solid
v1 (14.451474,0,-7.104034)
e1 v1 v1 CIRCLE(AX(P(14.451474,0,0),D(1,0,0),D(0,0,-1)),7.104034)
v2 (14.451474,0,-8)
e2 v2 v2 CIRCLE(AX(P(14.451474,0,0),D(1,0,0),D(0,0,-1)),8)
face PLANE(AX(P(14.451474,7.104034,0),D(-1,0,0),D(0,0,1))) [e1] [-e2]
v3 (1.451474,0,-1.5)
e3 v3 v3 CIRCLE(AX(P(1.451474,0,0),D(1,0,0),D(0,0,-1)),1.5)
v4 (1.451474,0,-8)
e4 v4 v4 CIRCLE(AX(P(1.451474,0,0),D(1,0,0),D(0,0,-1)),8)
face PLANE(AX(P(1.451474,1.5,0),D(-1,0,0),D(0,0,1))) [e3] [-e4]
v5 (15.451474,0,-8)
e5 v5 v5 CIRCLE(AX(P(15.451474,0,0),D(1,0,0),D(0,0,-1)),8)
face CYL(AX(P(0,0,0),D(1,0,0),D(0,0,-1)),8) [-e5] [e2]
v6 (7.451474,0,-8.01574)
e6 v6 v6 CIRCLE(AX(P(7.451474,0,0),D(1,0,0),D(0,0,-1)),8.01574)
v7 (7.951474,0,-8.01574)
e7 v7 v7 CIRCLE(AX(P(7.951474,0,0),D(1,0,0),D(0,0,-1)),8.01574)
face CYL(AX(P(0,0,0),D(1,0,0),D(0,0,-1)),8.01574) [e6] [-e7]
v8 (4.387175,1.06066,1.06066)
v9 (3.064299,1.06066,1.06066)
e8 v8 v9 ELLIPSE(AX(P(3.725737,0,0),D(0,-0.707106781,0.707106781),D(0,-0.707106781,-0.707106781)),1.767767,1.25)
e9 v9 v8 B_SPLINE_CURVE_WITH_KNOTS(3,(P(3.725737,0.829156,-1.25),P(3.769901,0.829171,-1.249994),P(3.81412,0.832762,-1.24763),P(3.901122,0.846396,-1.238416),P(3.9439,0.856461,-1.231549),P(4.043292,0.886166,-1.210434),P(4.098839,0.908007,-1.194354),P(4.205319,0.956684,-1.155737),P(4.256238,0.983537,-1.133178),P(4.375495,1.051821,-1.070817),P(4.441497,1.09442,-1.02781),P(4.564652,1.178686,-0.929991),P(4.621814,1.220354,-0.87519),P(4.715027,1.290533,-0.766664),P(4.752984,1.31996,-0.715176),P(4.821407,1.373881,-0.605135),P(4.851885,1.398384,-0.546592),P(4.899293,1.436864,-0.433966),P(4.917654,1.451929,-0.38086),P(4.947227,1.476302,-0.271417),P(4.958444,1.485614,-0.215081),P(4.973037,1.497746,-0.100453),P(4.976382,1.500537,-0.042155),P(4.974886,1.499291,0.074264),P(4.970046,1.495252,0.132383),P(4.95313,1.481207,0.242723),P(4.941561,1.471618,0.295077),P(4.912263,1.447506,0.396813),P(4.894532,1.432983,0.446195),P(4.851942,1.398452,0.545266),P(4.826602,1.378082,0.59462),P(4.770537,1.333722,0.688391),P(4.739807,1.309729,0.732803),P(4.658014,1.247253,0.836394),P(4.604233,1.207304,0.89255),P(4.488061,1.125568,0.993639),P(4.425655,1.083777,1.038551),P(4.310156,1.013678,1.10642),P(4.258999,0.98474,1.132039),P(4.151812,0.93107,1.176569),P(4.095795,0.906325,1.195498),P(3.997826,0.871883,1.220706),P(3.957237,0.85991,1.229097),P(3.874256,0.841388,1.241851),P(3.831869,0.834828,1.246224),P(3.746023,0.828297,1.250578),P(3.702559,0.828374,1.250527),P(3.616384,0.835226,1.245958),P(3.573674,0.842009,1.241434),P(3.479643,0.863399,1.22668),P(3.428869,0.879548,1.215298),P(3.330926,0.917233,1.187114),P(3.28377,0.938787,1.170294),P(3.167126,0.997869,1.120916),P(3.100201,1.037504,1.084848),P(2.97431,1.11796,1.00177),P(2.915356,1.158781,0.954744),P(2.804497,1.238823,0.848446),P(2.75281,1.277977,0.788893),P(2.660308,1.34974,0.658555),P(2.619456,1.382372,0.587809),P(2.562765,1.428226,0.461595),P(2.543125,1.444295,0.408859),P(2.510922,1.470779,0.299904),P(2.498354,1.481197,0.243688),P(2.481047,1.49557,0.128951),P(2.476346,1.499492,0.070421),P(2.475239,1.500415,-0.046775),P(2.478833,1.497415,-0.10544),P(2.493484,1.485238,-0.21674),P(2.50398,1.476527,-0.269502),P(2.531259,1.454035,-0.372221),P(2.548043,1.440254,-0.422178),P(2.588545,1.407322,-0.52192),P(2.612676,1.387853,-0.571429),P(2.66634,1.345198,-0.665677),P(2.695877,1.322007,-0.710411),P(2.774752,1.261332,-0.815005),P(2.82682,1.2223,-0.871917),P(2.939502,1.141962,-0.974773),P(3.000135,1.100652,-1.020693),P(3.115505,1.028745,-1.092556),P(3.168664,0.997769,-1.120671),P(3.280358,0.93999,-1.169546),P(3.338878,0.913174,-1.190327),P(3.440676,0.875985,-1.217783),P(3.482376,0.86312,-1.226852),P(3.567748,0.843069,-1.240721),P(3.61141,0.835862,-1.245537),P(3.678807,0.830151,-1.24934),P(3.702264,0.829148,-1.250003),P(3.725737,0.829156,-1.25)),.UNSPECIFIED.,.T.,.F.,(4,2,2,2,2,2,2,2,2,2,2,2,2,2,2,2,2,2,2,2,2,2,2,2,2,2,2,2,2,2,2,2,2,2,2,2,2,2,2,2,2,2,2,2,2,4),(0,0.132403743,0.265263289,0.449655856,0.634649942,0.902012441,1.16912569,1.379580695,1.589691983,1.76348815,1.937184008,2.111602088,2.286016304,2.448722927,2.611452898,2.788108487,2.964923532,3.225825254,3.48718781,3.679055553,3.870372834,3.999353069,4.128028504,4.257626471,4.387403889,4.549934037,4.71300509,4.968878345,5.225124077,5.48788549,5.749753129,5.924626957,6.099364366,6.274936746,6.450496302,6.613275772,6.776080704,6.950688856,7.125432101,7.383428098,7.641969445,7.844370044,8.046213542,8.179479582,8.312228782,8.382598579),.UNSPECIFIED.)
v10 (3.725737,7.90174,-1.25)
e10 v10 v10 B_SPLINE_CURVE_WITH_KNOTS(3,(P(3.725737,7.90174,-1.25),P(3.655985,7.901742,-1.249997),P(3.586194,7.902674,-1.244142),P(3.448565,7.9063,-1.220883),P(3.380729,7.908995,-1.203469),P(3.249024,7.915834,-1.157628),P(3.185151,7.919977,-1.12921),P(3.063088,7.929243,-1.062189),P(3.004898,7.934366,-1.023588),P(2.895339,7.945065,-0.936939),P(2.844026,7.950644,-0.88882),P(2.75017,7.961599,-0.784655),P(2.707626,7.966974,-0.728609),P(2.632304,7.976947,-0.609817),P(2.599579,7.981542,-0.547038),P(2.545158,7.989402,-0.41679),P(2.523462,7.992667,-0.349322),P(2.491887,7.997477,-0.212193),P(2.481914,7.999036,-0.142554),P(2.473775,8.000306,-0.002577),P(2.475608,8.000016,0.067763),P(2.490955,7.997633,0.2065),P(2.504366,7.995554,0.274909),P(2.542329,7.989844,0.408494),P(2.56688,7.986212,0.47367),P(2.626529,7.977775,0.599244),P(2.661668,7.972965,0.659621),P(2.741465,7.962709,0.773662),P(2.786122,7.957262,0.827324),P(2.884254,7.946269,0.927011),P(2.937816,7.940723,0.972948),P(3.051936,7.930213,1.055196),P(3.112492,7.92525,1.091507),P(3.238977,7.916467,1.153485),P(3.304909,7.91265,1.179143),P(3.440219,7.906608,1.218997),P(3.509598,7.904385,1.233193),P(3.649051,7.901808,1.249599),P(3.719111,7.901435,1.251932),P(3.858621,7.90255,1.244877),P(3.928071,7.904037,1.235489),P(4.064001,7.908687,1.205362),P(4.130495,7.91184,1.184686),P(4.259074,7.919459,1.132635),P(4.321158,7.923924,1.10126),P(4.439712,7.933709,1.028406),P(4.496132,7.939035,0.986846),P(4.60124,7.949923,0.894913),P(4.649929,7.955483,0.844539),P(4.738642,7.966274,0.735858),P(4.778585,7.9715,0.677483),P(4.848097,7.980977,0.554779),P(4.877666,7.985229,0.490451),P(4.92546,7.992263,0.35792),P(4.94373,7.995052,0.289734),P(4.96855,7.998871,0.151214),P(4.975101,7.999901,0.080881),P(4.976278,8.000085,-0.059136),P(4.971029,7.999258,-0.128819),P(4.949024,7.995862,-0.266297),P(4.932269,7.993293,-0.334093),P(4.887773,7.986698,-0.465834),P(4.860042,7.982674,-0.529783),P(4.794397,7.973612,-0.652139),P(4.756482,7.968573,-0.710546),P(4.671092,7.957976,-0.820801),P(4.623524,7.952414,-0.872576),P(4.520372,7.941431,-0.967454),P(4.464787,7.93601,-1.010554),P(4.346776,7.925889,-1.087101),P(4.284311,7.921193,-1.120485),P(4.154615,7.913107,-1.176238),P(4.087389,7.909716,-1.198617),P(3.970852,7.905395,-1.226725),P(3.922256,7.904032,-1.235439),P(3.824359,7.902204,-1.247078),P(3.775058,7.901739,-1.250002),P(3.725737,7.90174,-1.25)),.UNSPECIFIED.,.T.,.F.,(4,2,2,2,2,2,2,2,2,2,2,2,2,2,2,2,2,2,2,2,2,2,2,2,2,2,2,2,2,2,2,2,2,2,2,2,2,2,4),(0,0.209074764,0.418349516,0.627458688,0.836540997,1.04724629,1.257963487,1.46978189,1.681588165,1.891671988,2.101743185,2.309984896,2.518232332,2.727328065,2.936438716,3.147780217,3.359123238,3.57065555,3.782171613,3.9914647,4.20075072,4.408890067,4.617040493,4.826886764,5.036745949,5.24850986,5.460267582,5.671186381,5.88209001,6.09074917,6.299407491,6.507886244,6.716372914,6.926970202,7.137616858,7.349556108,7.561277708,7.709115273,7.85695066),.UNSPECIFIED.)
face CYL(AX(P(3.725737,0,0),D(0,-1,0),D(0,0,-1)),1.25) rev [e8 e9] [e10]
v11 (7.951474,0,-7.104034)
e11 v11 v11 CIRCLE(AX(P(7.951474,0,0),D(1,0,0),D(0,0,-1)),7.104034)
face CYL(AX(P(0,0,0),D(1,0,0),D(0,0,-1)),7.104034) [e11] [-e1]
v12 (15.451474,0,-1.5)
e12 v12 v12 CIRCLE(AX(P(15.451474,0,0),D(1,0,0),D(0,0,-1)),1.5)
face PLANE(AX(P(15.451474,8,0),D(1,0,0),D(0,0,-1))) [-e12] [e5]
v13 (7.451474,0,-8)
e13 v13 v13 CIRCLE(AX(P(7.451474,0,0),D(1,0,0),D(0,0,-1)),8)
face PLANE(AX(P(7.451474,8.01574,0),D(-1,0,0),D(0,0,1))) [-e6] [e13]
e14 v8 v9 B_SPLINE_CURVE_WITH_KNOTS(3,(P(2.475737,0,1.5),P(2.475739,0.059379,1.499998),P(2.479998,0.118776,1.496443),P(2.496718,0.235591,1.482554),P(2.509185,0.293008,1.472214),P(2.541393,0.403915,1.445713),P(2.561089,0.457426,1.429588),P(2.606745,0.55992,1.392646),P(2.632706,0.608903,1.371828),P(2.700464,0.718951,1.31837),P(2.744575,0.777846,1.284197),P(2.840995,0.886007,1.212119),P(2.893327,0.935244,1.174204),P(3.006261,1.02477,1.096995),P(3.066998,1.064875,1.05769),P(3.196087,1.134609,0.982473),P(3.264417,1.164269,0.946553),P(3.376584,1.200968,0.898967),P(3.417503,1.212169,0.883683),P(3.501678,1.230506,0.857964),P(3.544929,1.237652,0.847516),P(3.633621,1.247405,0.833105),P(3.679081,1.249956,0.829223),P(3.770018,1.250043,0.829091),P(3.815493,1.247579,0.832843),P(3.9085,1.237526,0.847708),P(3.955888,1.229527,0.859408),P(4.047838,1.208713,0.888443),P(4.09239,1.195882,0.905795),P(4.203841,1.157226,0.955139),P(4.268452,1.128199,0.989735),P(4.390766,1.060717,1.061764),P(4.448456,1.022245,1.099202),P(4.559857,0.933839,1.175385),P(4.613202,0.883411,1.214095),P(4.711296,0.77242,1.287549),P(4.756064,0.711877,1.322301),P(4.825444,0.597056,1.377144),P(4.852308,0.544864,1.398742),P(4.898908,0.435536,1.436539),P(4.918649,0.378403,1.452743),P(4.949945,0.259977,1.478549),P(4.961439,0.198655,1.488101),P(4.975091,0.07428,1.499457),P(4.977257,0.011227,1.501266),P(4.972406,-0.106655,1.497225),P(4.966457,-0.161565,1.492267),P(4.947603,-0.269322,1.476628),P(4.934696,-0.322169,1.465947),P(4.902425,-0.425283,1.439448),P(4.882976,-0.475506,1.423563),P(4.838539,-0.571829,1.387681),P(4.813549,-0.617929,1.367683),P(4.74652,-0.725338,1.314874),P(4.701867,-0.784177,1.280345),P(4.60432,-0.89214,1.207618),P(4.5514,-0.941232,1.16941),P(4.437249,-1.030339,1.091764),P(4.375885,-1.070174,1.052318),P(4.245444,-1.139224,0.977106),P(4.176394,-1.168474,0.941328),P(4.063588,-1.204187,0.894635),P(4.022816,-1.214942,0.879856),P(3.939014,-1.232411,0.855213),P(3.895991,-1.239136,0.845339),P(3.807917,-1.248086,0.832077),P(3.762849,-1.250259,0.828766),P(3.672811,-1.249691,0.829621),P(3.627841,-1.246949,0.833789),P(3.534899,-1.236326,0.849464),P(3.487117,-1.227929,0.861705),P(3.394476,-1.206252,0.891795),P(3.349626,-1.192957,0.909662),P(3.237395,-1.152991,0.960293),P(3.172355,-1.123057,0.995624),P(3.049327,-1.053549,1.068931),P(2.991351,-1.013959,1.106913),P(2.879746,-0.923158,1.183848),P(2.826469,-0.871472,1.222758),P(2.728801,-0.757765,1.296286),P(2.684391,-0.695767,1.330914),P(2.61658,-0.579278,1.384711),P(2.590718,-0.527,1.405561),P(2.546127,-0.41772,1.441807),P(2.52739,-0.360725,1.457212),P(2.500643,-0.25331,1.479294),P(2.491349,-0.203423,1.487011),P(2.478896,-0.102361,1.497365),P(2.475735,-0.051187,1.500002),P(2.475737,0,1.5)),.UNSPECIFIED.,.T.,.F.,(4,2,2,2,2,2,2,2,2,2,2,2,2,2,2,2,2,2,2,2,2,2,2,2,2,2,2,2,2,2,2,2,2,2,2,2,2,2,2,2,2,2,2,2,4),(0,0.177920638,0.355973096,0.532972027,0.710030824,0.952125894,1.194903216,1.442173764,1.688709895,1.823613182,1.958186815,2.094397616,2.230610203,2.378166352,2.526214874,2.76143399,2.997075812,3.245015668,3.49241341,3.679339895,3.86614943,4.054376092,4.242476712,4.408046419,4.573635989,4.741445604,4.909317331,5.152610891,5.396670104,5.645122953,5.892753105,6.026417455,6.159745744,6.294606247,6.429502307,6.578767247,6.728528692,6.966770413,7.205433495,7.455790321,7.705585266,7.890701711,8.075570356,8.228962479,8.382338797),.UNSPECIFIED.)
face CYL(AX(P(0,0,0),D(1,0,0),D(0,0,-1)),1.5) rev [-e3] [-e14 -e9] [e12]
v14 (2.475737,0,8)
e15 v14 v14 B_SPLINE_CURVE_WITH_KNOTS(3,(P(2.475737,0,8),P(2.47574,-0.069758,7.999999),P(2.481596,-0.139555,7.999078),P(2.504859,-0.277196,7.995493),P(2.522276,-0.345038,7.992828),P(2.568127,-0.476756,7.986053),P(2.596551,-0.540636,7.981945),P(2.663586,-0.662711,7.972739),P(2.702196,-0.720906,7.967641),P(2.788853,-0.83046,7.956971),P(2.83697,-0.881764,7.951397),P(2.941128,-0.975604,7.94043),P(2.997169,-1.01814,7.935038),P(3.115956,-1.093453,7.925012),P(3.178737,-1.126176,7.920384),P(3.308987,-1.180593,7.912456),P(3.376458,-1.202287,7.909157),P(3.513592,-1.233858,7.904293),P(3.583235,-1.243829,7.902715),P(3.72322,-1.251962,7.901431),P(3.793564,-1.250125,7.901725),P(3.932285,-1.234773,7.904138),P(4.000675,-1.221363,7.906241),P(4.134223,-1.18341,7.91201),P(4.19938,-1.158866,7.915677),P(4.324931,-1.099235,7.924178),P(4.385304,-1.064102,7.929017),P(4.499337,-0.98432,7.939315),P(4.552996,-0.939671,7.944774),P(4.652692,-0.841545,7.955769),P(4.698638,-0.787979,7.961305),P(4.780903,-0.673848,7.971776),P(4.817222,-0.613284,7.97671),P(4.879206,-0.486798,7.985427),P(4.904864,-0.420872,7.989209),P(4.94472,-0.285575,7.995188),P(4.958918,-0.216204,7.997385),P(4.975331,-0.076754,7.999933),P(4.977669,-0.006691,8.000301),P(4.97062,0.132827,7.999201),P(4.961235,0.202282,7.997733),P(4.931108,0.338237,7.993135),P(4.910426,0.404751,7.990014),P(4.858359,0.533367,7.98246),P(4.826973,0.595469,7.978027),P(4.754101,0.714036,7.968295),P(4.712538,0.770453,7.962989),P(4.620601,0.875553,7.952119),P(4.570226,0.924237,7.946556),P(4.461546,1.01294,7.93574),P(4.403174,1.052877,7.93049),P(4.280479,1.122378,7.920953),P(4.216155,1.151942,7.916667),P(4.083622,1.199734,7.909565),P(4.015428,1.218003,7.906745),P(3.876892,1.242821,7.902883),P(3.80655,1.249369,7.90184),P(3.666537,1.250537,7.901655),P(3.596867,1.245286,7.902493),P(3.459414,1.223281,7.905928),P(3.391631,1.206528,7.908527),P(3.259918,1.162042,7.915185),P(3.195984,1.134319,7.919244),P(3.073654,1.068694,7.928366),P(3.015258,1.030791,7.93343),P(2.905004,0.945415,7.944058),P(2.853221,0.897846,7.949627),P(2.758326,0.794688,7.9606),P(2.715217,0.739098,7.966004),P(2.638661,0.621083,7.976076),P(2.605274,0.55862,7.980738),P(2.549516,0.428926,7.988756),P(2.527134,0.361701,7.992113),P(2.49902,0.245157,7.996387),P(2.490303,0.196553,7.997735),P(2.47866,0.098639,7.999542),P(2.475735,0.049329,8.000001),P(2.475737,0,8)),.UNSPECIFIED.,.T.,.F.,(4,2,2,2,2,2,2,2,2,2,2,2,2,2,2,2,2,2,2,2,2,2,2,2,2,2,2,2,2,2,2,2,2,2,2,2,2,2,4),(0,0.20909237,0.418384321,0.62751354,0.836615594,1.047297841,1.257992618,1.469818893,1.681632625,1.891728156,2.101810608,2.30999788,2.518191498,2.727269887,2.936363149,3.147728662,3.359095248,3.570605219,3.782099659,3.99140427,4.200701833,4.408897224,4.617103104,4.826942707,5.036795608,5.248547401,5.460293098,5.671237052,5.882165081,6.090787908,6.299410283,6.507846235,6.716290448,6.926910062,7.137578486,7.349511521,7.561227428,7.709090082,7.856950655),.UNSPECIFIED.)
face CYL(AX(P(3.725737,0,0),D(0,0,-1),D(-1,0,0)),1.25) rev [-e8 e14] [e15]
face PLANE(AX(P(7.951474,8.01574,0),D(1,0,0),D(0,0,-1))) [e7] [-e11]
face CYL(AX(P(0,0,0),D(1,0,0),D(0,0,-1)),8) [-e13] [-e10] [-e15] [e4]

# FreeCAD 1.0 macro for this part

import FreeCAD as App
import Part
import Sketcher
Q = App.Units.Quantity

doc = App.newDocument("Part")
body = doc.addObject("PartDesign::Body", "Body")

sketch1 = body.newObject("Sketcher::SketchObject", "Sketch")
sketch1.AttachmentSupport = (doc.getObject("XY_Plane"), [""])
sketch1.MapMode = "FlatFace"
sketch1.addGeometry(Part.LineSegment(App.Vector(1.451, 8, 0), App.Vector(1.451, 1.5, 0)), False)
sketch1.addGeometry(Part.LineSegment(App.Vector(1.451, 1.5, 0), App.Vector(15.451, 1.5, 0)), False)
sketch1.addGeometry(Part.LineSegment(App.Vector(15.451, 1.5, 0), App.Vector(15.451, 8, 0)), False)
sketch1.addGeometry(Part.LineSegment(App.Vector(15.451, 8, 0), App.Vector(14.451, 8, 0)), False)
sketch1.addGeometry(Part.LineSegment(App.Vector(14.451, 8, 0), App.Vector(14.451, 7.104, 0)), False)
sketch1.addGeometry(Part.LineSegment(App.Vector(14.451, 7.104, 0), App.Vector(7.951, 7.104, 0)), False)
sketch1.addGeometry(Part.LineSegment(App.Vector(7.951, 7.104, 0), App.Vector(7.951, 8.016, 0)), False)
sketch1.addGeometry(Part.LineSegment(App.Vector(7.951, 8.016, 0), App.Vector(7.451, 8.016, 0)), False)
sketch1.addGeometry(Part.LineSegment(App.Vector(7.451, 8.016, 0), App.Vector(7.451, 8, 0)), False)
sketch1.addGeometry(Part.LineSegment(App.Vector(7.451, 8, 0), App.Vector(1.451, 8, 0)), False)
sketch1.addConstraint(Sketcher.Constraint("Coincident", 0, 2, 1, 1))
sketch1.addConstraint(Sketcher.Constraint("Coincident", 1, 2, 2, 1))
sketch1.addConstraint(Sketcher.Constraint("Coincident", 2, 2, 3, 1))
sketch1.addConstraint(Sketcher.Constraint("Coincident", 3, 2, 4, 1))
sketch1.addConstraint(Sketcher.Constraint("Coincident", 4, 2, 5, 1))
sketch1.addConstraint(Sketcher.Constraint("Coincident", 5, 2, 6, 1))
sketch1.addConstraint(Sketcher.Constraint("Coincident", 6, 2, 7, 1))
sketch1.addConstraint(Sketcher.Constraint("Coincident", 7, 2, 8, 1))
sketch1.addConstraint(Sketcher.Constraint("Coincident", 8, 2, 9, 1))
sketch1.addConstraint(Sketcher.Constraint("Coincident", 9, 2, 0, 1))
sketch1.addConstraint(Sketcher.Constraint("Vertical", 0))
sketch1.addConstraint(Sketcher.Constraint("Horizontal", 1))
sketch1.addConstraint(Sketcher.Constraint("Vertical", 2))
sketch1.addConstraint(Sketcher.Constraint("Horizontal", 3))
sketch1.addConstraint(Sketcher.Constraint("Vertical", 4))
sketch1.addConstraint(Sketcher.Constraint("Horizontal", 5))
sketch1.addConstraint(Sketcher.Constraint("Vertical", 6))
sketch1.addConstraint(Sketcher.Constraint("Horizontal", 7))
sketch1.addConstraint(Sketcher.Constraint("Vertical", 8))
sketch1.addConstraint(Sketcher.Constraint("Horizontal", 9))
sketch1.addConstraint(Sketcher.Constraint("Horizontal", 3, 2, 8, 2))
sketch1.addConstraint(Sketcher.Constraint("Equal", 5, 0))
sketch1.addConstraint(Sketcher.Constraint("DistanceX", 1, 1, 1, 2, Q("14 mm")))
sketch1.addConstraint(Sketcher.Constraint("DistanceX", 3, 2, 3, 1, Q("1 mm")))
sketch1.addConstraint(Sketcher.Constraint("DistanceX", 9, 2, 9, 1, Q("6 mm")))
sketch1.addConstraint(Sketcher.Constraint("DistanceX", 5, 2, 5, 1, Q("6.5 mm")))
sketch1.addConstraint(Sketcher.Constraint("DistanceY", -1, 1, 2, 2, Q("8 mm")))
sketch1.addConstraint(Sketcher.Constraint("DistanceY", 8, 2, 8, 1, Q("0.01574 mm")))
sketch1.addConstraint(Sketcher.Constraint("DistanceY", 4, 2, 4, 1, Q("0.895966 mm")))
sketch1.addConstraint(Sketcher.Constraint("DistanceX", -1, 1, 0, 2, Q("1.451474 mm")))
revolution = body.newObject("PartDesign::Revolution", "Revolution")
revolution.Profile = sketch1
revolution.ReferenceAxis = (sketch1, ["H_Axis"])
revolution.Angle = 360

sketch2 = body.newObject("Sketcher::SketchObject", "Sketch001")
sketch2.AttachmentSupport = (doc.getObject("YZ_Plane"), [""])
sketch2.MapMode = "FlatFace"
sketch2.AttachmentOffset = App.Placement(App.Vector(0, 0, 3.725737), App.Rotation())
sketch2.addGeometry(Part.LineSegment(App.Vector(8, 0, 0), App.Vector(0, 0, 0)), False)
sketch2.addGeometry(Part.LineSegment(App.Vector(0, 0, 0), App.Vector(0, -1.2, 0)), False)
sketch2.addGeometry(Part.LineSegment(App.Vector(0, -1.2, 0), App.Vector(8, -1.2, 0)), False)
sketch2.addGeometry(Part.LineSegment(App.Vector(8, -1.2, 0), App.Vector(8, 0, 0)), False)
sketch2.addConstraint(Sketcher.Constraint("Coincident", 0, 2, 1, 1))
sketch2.addConstraint(Sketcher.Constraint("Coincident", 1, 2, 2, 1))
sketch2.addConstraint(Sketcher.Constraint("Coincident", 2, 2, 3, 1))
sketch2.addConstraint(Sketcher.Constraint("Coincident", 3, 2, 0, 1))
sketch2.addConstraint(Sketcher.Constraint("Horizontal", 0))
sketch2.addConstraint(Sketcher.Constraint("Vertical", 1))
sketch2.addConstraint(Sketcher.Constraint("Horizontal", 2))
sketch2.addConstraint(Sketcher.Constraint("Vertical", 3))
sketch2.addConstraint(Sketcher.Constraint("Coincident", 0, 2, -1, 1))
sketch2.addConstraint(Sketcher.Constraint("DistanceY", 1, 2, 1, 1, Q("1.25 mm")))
sketch2.addConstraint(Sketcher.Constraint("DistanceX", 0, 2, 0, 1, Q("8.01574 mm")))
groove = body.newObject("PartDesign::Groove", "Groove")
groove.Profile = sketch2
groove.ReferenceAxis = (sketch2, ["H_Axis"])
groove.Angle = 360

sketch3 = body.newObject("Sketcher::SketchObject", "Sketch002")
sketch3.AttachmentSupport = (doc.getObject("YZ_Plane"), [""])
sketch3.MapMode = "FlatFace"
sketch3.AttachmentOffset = App.Placement(App.Vector(0, 0, 3.725737), App.Rotation())
sketch3.addGeometry(Part.LineSegment(App.Vector(0, 8, 0), App.Vector(0, 0, 0)), False)
sketch3.addGeometry(Part.LineSegment(App.Vector(0, 0, 0), App.Vector(1.2, 0, 0)), False)
sketch3.addGeometry(Part.LineSegment(App.Vector(1.2, 0, 0), App.Vector(1.2, 8, 0)), False)
sketch3.addGeometry(Part.LineSegment(App.Vector(1.2, 8, 0), App.Vector(0, 8, 0)), False)
sketch3.addConstraint(Sketcher.Constraint("Coincident", 0, 2, 1, 1))
sketch3.addConstraint(Sketcher.Constraint("Coincident", 1, 2, 2, 1))
sketch3.addConstraint(Sketcher.Constraint("Coincident", 2, 2, 3, 1))
sketch3.addConstraint(Sketcher.Constraint("Coincident", 3, 2, 0, 1))
sketch3.addConstraint(Sketcher.Constraint("Vertical", 0))
sketch3.addConstraint(Sketcher.Constraint("Horizontal", 1))
sketch3.addConstraint(Sketcher.Constraint("Vertical", 2))
sketch3.addConstraint(Sketcher.Constraint("Horizontal", 3))
sketch3.addConstraint(Sketcher.Constraint("Coincident", 0, 2, -1, 1))
sketch3.addConstraint(Sketcher.Constraint("DistanceX", 1, 1, 1, 2, Q("1.25 mm")))
sketch3.addConstraint(Sketcher.Constraint("DistanceY", 0, 2, 0, 1, Q("8.01574 mm")))
groove2 = body.newObject("PartDesign::Groove", "Groove001")
groove2.Profile = sketch3
groove2.ReferenceAxis = (sketch3, ["V_Axis"])
groove2.Angle = 360

doc.recompute()
